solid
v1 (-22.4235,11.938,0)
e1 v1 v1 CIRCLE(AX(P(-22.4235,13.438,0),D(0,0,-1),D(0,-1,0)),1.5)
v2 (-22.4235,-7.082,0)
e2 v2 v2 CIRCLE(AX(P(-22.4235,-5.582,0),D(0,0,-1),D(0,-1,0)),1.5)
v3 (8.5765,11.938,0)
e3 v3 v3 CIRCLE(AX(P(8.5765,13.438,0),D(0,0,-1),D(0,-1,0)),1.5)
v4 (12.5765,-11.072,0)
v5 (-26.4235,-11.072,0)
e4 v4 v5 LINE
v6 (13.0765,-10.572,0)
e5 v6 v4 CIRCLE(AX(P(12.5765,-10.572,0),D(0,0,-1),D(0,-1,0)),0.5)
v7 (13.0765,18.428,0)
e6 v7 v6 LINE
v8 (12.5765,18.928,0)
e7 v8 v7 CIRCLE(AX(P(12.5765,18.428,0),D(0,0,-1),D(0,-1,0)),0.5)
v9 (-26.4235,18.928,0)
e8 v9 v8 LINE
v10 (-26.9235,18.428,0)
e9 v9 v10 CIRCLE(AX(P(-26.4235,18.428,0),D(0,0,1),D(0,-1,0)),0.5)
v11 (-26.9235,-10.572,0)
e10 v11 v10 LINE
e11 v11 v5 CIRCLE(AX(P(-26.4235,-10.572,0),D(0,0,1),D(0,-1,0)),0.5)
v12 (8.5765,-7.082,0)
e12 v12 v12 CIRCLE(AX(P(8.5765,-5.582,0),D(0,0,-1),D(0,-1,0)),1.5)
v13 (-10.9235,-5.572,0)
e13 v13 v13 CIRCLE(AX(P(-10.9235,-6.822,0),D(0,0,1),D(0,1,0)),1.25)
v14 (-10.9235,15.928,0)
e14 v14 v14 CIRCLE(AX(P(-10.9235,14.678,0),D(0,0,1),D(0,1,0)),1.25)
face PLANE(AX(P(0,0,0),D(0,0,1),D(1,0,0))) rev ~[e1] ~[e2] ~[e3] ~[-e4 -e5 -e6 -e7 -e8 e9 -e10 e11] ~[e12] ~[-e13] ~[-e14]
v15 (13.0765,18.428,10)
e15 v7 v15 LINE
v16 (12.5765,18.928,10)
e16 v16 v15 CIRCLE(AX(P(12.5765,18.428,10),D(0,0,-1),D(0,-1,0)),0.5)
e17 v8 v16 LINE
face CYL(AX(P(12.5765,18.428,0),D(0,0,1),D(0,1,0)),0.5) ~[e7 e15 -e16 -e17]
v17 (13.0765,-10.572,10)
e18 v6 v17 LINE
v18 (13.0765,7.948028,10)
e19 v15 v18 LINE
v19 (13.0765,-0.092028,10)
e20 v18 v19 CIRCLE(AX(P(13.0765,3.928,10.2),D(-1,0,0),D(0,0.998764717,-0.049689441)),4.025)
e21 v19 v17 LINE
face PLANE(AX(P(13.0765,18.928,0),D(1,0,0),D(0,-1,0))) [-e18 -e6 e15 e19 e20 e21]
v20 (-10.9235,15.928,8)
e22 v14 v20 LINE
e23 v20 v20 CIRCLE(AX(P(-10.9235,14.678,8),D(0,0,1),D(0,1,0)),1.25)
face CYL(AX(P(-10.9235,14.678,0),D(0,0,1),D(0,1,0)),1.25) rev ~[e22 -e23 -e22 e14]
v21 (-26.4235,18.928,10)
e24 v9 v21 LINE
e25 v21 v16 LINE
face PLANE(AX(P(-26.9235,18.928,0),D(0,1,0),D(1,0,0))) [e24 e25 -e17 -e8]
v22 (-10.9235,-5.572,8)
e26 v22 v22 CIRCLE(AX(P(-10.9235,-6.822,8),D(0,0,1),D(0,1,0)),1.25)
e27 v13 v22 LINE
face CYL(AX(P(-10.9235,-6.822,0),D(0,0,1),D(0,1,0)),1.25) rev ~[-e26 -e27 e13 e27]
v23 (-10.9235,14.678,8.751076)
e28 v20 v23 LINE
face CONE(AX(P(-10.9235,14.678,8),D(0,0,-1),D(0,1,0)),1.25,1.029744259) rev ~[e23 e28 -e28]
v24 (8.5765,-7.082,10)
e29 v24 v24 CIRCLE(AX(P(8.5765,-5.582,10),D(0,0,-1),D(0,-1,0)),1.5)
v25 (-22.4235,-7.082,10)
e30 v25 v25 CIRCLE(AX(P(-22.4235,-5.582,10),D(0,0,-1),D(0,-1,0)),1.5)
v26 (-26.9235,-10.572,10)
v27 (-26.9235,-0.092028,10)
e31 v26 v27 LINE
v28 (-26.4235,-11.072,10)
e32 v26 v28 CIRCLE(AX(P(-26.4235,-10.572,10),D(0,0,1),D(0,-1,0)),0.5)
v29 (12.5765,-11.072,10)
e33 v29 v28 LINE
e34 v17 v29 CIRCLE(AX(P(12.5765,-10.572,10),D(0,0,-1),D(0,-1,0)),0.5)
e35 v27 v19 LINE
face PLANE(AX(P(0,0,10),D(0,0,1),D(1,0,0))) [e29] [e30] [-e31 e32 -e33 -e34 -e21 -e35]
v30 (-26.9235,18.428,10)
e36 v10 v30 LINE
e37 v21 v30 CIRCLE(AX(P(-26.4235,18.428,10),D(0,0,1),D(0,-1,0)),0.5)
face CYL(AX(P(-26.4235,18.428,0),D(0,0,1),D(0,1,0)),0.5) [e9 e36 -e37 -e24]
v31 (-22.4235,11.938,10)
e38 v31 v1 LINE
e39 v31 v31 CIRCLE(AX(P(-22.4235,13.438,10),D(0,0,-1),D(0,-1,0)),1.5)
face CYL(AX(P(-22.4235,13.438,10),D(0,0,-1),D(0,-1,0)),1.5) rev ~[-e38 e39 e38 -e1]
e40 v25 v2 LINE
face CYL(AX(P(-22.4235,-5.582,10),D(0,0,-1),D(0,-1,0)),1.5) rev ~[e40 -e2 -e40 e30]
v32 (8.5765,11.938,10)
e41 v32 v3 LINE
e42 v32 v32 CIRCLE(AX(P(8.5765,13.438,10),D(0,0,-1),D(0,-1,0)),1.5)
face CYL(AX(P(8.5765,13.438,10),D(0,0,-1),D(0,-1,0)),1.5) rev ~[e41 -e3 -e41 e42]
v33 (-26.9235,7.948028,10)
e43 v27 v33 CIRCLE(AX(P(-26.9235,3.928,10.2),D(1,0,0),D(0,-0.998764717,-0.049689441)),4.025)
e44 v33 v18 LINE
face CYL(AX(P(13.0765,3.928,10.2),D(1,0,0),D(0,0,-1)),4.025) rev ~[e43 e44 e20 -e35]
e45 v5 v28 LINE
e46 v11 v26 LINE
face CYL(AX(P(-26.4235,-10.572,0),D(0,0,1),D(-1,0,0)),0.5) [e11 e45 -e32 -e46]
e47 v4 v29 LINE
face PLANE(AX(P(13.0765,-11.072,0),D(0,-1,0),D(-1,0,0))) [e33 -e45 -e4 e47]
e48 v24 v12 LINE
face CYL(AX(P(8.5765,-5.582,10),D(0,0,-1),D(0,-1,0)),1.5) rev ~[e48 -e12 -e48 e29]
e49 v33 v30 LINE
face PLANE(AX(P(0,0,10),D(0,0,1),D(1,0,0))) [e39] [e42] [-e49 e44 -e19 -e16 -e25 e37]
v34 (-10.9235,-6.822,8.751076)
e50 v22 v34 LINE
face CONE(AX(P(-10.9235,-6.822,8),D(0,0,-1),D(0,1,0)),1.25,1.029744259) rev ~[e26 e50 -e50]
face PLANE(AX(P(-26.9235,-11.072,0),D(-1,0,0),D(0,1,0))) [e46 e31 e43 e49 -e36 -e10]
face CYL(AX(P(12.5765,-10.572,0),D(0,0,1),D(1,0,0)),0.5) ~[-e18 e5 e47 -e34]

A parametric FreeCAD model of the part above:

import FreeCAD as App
import Part
import Sketcher

V = App.Vector
Q = App.Units.Quantity


def edges_at(feature, points):
    """Names of the edges that pass closest to the given points."""
    edges = feature.Shape.Edges
    near = lambda p: min(range(len(edges)), key=lambda i: edges[i].distToShape(Part.Vertex(*p))[0])
    return sorted({f"Edge{near(p) + 1}" for p in points})

doc = App.newDocument("Part")
body = doc.addObject("PartDesign::Body", "Body")

# Sketch on XY plane
sketch1 = doc.addObject("Sketcher::SketchObject", "Sketch")
body.addObject(sketch1)
sketch1.AttachmentSupport = (doc.XY_Plane, [""])
sketch1.MapMode = "FlatFace"
sketch1.addGeometry([
    Part.LineSegment(V(13.0765, 18.928, 0), V(-26.9235, 18.928, 0)),
    Part.LineSegment(V(-26.9235, 18.928, 0), V(-26.9235, -11.072, 0)),
    Part.LineSegment(V(-26.9235, -11.072, 0), V(13.0765, -11.072, 0)),
    Part.LineSegment(V(13.0765, -11.072, 0), V(13.0765, 18.928, 0)),
], False)
sketch1.addConstraint([
    Sketcher.Constraint("Coincident", 0, 2, 1, 1),
    Sketcher.Constraint("Coincident", 1, 2, 2, 1),
    Sketcher.Constraint("Coincident", 2, 2, 3, 1),
    Sketcher.Constraint("Coincident", 3, 2, 0, 1),
    Sketcher.Constraint("Horizontal", 0),
    Sketcher.Constraint("Vertical", 1),
    Sketcher.Constraint("Horizontal", 2),
    Sketcher.Constraint("Vertical", 3),
    Sketcher.Constraint("DistanceX", 0, 2, 0, 1, Q("40 mm")),
    Sketcher.Constraint("DistanceY", 1, 2, 1, 1, Q("30 mm")),
    Sketcher.Constraint("DistanceY", -1, 1, 0, 2, Q("18.928 mm")),
    Sketcher.Constraint("DistanceX", 0, 2, -1, 1, Q("26.9235 mm")),
])
pad1 = doc.addObject("PartDesign::Pad", "Pad")
body.addObject(pad1)
pad1.Profile = sketch1
pad1.Length = 10

# Sketch on YZ plane
sketch2 = doc.addObject("Sketcher::SketchObject", "Sketch001")
body.addObject(sketch2)
sketch2.AttachmentSupport = (doc.YZ_Plane, [""])
sketch2.MapMode = "FlatFace"
sketch2.AttachmentOffset = App.Placement(V(0, 0, 13.0765), App.Rotation())
sketch2.addGeometry(Part.Circle(V(3.928, 10.2, 0), V(0, 0, 1), 4.025), False)
sketch2.addConstraint([
    Sketcher.Constraint("Diameter", 0, Q("8.05 mm")),
    Sketcher.Constraint("DistanceY", -1, 1, 0, 3, Q("10.2 mm")),
    Sketcher.Constraint("DistanceX", -1, 1, 0, 3, Q("3.928 mm")),
])
pocket1 = doc.addObject("PartDesign::Pocket", "Pocket")
body.addObject(pocket1)
pocket1.Profile = sketch2
pocket1.Type = "ThroughAll"

# Sketch on XY plane
sketch3 = doc.addObject("Sketcher::SketchObject", "Sketch002")
body.addObject(sketch3)
sketch3.AttachmentSupport = (doc.XY_Plane, [""])
sketch3.MapMode = "FlatFace"
sketch3.AttachmentOffset = App.Placement(V(0, 0, 10), App.Rotation())
sketch3.addGeometry([
    Part.Circle(V(8.5765, -5.582, 0), V(0, 0, 1), 1.5),
    Part.Circle(V(-22.4235, -5.582, 0), V(0, 0, 1), 1.5),
    Part.Circle(V(8.5765, 13.438, 0), V(0, 0, 1), 1.5),
    Part.Circle(V(-22.4235, 13.438, 0), V(0, 0, 1), 1.5),
], False)
sketch3.addConstraint([
    Sketcher.Constraint("Equal", 0, 1),
    Sketcher.Constraint("Equal", 1, 2),
    Sketcher.Constraint("Equal", 2, 3),
    Sketcher.Constraint("Horizontal", 0, 3, 1, 3),
    Sketcher.Constraint("Horizontal", 2, 3, 3, 3),
    Sketcher.Constraint("Vertical", 0, 3, 2, 3),
    Sketcher.Constraint("Vertical", 1, 3, 3, 3),
    Sketcher.Constraint("Diameter", 0, Q("3 mm")),
    Sketcher.Constraint("DistanceX", 1, 3, 0, 3, Q("31 mm")),
    Sketcher.Constraint("DistanceY", 0, 3, 2, 3, Q("19.02 mm")),
    Sketcher.Constraint("DistanceY", 0, 3, -1, 1, Q("5.582 mm")),
    Sketcher.Constraint("DistanceX", -1, 1, 0, 3, Q("8.5765 mm")),
])
doc.recompute()
hole = doc.addObject("PartDesign::Hole", "Hole")
body.addObject(hole)
hole.Profile = sketch3
hole.ThreadType = "None"
hole.Diameter = 3
hole.DepthType = "Dimension"
hole.Depth = 20
hole.DrillPoint = "Angled"
hole.DrillPointAngle = 118
doc.recompute()

fillet = doc.addObject("PartDesign::Fillet", "Fillet")
body.addObject(fillet)
fillet.Base = (hole, edges_at(hole, [
    (13.076, 18.928, 5),
    (-26.924, 18.928, 5),
    (13.076, -11.072, 5),
    (-26.924, -11.072, 5),
]))
fillet.Radius = 0.5

# Sketch on XY plane
sketch4 = doc.addObject("Sketcher::SketchObject", "Sketch003")
body.addObject(sketch4)
sketch4.AttachmentSupport = (doc.XY_Plane, [""])
sketch4.MapMode = "FlatFace"
sketch4.addGeometry([
    Part.Circle(V(-10.9235, -6.822, 0), V(0, 0, 1), 1.25),
    Part.Circle(V(-10.9235, 14.678, 0), V(0, 0, 1), 1.25),
], False)
sketch4.addConstraint([
    Sketcher.Constraint("Equal", 0, 1),
    Sketcher.Constraint("Vertical", 0, 3, 1, 3),
    Sketcher.Constraint("Diameter", 0, Q("2.5 mm")),
    Sketcher.Constraint("DistanceY", 0, 3, 1, 3, Q("21.5 mm")),
    Sketcher.Constraint("DistanceY", 0, 3, -1, 1, Q("6.822 mm")),
    Sketcher.Constraint("DistanceX", 0, 3, -1, 1, Q("10.9235 mm")),
])
doc.recompute()
hole2 = doc.addObject("PartDesign::Hole", "Hole001")
body.addObject(hole2)
hole2.Profile = sketch4
hole2.ThreadType = "None"
hole2.Diameter = 2.5
hole2.DepthType = "Dimension"
hole2.Depth = 8
hole2.DrillPoint = "Angled"
hole2.DrillPointAngle = 118
hole2.Reversed = True

doc.recompute()
